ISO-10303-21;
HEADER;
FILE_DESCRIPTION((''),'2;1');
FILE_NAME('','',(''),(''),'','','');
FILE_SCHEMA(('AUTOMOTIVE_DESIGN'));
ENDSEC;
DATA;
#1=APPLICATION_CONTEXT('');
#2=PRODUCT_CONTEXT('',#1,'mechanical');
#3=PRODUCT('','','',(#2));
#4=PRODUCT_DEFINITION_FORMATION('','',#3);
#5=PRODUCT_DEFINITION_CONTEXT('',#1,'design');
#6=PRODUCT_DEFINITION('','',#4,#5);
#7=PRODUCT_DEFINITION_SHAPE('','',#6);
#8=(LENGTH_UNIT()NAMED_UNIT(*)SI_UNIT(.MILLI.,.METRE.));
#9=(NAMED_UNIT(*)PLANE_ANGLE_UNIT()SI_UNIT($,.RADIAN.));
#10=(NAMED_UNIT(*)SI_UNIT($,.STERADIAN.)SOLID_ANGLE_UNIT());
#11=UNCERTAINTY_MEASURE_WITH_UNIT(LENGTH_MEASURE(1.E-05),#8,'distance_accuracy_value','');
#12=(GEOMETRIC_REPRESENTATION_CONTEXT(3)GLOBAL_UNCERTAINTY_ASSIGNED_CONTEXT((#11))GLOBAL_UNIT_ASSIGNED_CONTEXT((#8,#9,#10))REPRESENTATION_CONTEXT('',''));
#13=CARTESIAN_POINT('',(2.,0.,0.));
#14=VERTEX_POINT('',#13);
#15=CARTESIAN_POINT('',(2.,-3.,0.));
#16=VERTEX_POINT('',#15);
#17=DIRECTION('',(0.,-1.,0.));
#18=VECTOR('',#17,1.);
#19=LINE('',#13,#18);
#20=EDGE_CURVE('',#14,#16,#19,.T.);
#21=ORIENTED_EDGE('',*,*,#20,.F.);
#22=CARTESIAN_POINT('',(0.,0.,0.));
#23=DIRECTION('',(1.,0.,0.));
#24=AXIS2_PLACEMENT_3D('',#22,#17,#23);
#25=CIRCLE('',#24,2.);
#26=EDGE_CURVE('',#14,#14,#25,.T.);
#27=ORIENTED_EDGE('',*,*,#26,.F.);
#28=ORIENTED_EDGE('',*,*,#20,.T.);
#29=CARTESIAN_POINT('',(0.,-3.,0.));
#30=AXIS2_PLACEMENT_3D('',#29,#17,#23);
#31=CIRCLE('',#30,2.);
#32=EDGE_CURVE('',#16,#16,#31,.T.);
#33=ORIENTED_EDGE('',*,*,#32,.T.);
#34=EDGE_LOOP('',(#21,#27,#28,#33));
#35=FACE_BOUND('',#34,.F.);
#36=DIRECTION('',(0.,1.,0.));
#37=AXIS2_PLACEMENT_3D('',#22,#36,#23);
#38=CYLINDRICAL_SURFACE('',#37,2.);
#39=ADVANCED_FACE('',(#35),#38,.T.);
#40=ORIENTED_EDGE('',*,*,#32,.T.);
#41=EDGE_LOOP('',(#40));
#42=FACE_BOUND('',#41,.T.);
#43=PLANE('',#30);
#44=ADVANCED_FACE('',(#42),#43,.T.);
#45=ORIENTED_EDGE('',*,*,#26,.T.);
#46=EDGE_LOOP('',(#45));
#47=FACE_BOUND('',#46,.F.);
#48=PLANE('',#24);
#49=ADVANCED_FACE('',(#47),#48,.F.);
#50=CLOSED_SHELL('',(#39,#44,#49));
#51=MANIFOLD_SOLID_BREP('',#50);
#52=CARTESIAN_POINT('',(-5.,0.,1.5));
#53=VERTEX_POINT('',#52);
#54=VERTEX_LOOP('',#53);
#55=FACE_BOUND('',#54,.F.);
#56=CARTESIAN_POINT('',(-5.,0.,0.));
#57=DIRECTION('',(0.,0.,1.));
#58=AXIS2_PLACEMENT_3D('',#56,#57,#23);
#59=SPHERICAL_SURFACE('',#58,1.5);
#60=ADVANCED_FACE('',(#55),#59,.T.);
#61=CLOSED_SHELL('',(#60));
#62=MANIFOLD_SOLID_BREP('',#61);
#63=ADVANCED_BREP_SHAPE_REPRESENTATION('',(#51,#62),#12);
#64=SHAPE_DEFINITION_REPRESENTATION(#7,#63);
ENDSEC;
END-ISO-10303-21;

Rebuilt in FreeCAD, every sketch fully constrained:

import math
import FreeCAD as App
import Part
import Sketcher

doc = App.newDocument("Part")
body = doc.addObject("PartDesign::Body", "Body")

# Sketch on XZ plane
sketch1 = body.newObject("Sketcher::SketchObject", "Sketch")
sketch1.AttachmentSupport = (doc.getObject("XZ_Plane"), [""])
sketch1.MapMode = "FlatFace"
sketch1.addGeometry(Part.Circle(App.Vector(0, 0, 0), App.Vector(0, 0, 1), 2), False)
sketch1.addConstraint([
    Sketcher.Constraint("Coincident", 0, 3, -1, 1),
    Sketcher.Constraint("Diameter", 0, 4.0),
])
pad1 = body.newObject("PartDesign::Pad", "Pad")
pad1.Profile = sketch1
pad1.Length = 3
body2 = doc.addObject("PartDesign::Body", "Body001")

# Sketch on XZ plane
sketch2 = body2.newObject("Sketcher::SketchObject", "Sketch001")
sketch2.AttachmentSupport = (doc.getObject("XZ_Plane001"), [""])
sketch2.MapMode = "FlatFace"
sketch2.addGeometry([
    Part.LineSegment(App.Vector(-5, 1.5, 0), App.Vector(-5, -1.5, 0)),
    Part.ArcOfCircle(Part.Circle(App.Vector(-5, 0, 0), App.Vector(0, 0, 1), 1.5), math.radians(-90), math.radians(90)),
], False)
sketch2.addGeometry(Part.LineSegment(App.Vector(-5, 1.5, 0), App.Vector(-5, -1.5, 0)), True)  # axis
sketch2.addConstraint([
    Sketcher.Constraint("Coincident", 0, 1, 1, 2),
    Sketcher.Constraint("Coincident", 1, 1, 0, 2),
    Sketcher.Constraint("Vertical", 0),
    Sketcher.Constraint("Vertical", 2),
    Sketcher.Constraint("Coincident", 2, 1, 0, 1),
    Sketcher.Constraint("PointOnObject", 1, 3, -1),
    Sketcher.Constraint("Vertical", 1, 3, 0, 1),
    Sketcher.Constraint("Equal", 0, 2),
    Sketcher.Constraint("Radius", 1, 1.5),
    Sketcher.Constraint("DistanceX", 1, 3, -1, 1, 5.0),
])
revolution = body2.newObject("PartDesign::Revolution", "Revolution")
revolution.Profile = sketch2
revolution.ReferenceAxis = (sketch2, ["Axis0"])
revolution.Angle = 360

doc.recompute()
